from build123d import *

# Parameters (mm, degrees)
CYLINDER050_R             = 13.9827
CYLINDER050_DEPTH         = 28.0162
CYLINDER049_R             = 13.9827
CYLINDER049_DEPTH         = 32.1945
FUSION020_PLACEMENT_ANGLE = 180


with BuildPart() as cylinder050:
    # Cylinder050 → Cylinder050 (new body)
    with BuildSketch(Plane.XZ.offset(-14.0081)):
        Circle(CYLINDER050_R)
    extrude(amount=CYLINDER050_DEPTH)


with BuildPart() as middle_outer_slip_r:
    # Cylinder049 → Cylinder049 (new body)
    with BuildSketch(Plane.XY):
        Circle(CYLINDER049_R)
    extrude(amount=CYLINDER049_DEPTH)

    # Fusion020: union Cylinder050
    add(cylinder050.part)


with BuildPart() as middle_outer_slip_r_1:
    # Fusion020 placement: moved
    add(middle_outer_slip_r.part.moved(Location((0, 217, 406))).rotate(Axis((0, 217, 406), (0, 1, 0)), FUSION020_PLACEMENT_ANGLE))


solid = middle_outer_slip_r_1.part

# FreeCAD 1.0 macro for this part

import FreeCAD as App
import Part
import Sketcher
from FreeCAD import Vector
Q = App.Units.Quantity

doc = App.newDocument("Part")
body = doc.addObject("PartDesign::Body", "Body")

sketch1 = doc.addObject("Sketcher::SketchObject", "Sketch")
body.addObject(sketch1)
sketch1.AttachmentSupport = (doc.XZ_Plane, [""])
sketch1.MapMode = "FlatFace"
sketch1.AttachmentOffset = App.Placement(Vector(0, 0, -0.5515 * 25.4), App.Rotation())
sketch1.addGeometry(Part.Circle(Vector(0, 0, 0), Vector(0, 0, 1), 13.9827), False)
sketch1.addConstraint([
    Sketcher.Constraint("Coincident", 0, 3, -1, 1),
    Sketcher.Constraint("Diameter", 0, Q("1.101 in")),
])
pad1 = doc.addObject("PartDesign::Pad", "Pad")
body.addObject(pad1)
pad1.Profile = sketch1
pad1.Length = Q("1.103 in")
body2 = doc.addObject("PartDesign::Body", "Body001")

sketch2 = doc.addObject("Sketcher::SketchObject", "Sketch001")
body2.addObject(sketch2)
sketch2.AttachmentSupport = (doc.getObject("XY_Plane001"), [""])
sketch2.MapMode = "FlatFace"
sketch2.addGeometry(Part.Circle(Vector(0, 0, 0), Vector(0, 0, 1), 13.9827), False)
sketch2.addConstraint([
    Sketcher.Constraint("Coincident", 0, 3, -1, 1),
    Sketcher.Constraint("Diameter", 0, Q("1.101 in")),
])
pad2 = doc.addObject("PartDesign::Pad", "Pad001")
body2.addObject(pad2)
pad2.Profile = sketch2
pad2.Length = Q("1.2675 in")
doc.recompute()

boolean = doc.addObject("PartDesign::Boolean", "Boolean")
body2.addObject(boolean)
boolean.Type = "Fuse"
boolean.addObjects([body])
body3 = doc.addObject("PartDesign::Body", "Body002")
doc.recompute()

body2.Placement = App.Placement(Vector(0, 217, 406), App.Rotation(Vector(0, 1, 0), 180))
boolean2 = doc.addObject("PartDesign::Boolean", "Boolean001")
body3.addObject(boolean2)
boolean2.Type = "Fuse"
boolean2.addObjects([body2])

doc.recompute()
